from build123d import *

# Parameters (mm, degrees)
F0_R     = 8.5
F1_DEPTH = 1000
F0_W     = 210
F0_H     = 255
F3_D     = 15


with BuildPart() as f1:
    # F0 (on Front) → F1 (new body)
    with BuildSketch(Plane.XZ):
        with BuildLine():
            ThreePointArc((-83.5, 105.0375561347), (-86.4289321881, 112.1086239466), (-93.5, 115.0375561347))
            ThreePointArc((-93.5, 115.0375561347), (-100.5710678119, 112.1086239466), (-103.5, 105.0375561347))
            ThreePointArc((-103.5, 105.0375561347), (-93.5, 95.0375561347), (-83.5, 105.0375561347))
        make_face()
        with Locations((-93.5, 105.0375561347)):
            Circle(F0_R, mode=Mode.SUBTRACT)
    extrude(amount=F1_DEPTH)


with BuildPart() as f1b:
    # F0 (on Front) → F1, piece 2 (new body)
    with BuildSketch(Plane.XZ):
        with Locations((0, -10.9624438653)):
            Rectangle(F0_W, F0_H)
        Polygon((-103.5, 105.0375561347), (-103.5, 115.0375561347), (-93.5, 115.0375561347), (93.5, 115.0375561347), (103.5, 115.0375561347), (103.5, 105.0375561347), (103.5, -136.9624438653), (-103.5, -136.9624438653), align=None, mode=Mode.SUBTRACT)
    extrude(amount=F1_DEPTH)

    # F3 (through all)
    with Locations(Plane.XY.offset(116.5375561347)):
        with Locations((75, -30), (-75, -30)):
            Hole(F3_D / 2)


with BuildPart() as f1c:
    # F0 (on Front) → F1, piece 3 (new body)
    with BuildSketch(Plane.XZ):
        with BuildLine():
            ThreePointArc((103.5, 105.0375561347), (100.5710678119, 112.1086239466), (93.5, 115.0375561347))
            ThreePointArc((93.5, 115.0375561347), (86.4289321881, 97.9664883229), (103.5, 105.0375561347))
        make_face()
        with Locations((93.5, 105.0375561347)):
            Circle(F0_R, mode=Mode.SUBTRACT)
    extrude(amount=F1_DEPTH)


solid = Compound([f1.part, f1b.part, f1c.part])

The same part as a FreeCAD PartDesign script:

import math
import FreeCAD as App
import Part
import Sketcher

V = App.Vector
Q = App.Units.Quantity


def add_polygon(sketch, points):
    """Adds a closed chain of lines whose ends are joined by coincident constraints."""
    first, n = sketch.GeometryCount, len(points)
    for a, b in zip(points, points[1:] + points[:1]):
        sketch.addGeometry(Part.LineSegment(App.Vector(*a, 0), App.Vector(*b, 0)), False)
    for i in range(n):
        sketch.addConstraint(Sketcher.Constraint("Coincident", first + i, 2, first + (i + 1) % n, 1))

doc = App.newDocument("Part")
params = doc.addObject("Spreadsheet::Sheet", "Params")
for row, (alias, value) in enumerate([
    ("sketch1_diameter", "17 mm"),
    ("sketch1_radius", "10 mm"),
    ("pad1_length", "1000 mm"),
    ("sketch2_width", "210 mm"),
    ("sketch2_width2", "207 mm"),
    ("sketch2_height", "255 mm"),
    ("sketch2_height2", "252 mm"),
    ("pad2_length", "1000 mm"),
    ("sketch3_diameter", "15 mm"),
    ("hole_diameter", "15 mm"),
    ("sketch4_diameter", "17 mm"),
    ("sketch4_radius", "10 mm"),
    ("pad3_length", "1000 mm"),
], start=1):
    params.set(f"A{row}", alias)
    params.set(f"B{row}", "=" + value)
    params.setAlias(f"B{row}", alias)

body = doc.addObject("PartDesign::Body", "Body")

sketch1 = body.newObject("Sketcher::SketchObject", "Sketch")
sketch1.AttachmentSupport = (doc.getObject("XZ_Plane"), [""])
sketch1.MapMode = "FlatFace"
sketch1.addGeometry([
    Part.ArcOfCircle(Part.Circle(V(-93.5, 105.037556, 0), V(0, 0, 1), 10), math.radians(0), math.radians(90)),
    Part.ArcOfCircle(Part.Circle(V(-93.5, 105.037556, 0), V(0, 0, 1), 10), math.radians(90), math.radians(180)),
    Part.ArcOfCircle(Part.Circle(V(-93.5, 105.037556, 0), V(0, 0, 1), 10), math.radians(180), math.radians(360)),
    Part.Circle(V(-93.5, 105.037556, 0), V(0, 0, 1), 8.5),
], False)
sketch1.addConstraint([
    Sketcher.Constraint("Tangent", 0, 2, 1, 1),
    Sketcher.Constraint("Tangent", 1, 2, 2, 1),
    Sketcher.Constraint("Tangent", 2, 2, 0, 1),
    Sketcher.Constraint("Coincident", 3, 3, 0, 3),
    Sketcher.Constraint("Horizontal", 3, 3, 1, 2),
    Sketcher.Constraint("Horizontal", 1, 2, 2, 2),
    Sketcher.Constraint("Vertical", 3, 3, 0, 2),
    Sketcher.Constraint("Diameter", 3, Q("17 mm")),
    Sketcher.Constraint("Radius", 0, Q("10 mm")),
    Sketcher.Constraint("DistanceX", 0, 3, -1, 1, Q("93.5 mm")),
    Sketcher.Constraint("DistanceY", -1, 1, 0, 3, Q("105.037556 mm")),
])
sketch1.setExpression("Constraints[7]", "Params.sketch1_diameter")
sketch1.setExpression("Constraints[8]", "Params.sketch1_radius")
pad1 = body.newObject("PartDesign::Pad", "Pad")
pad1.Profile = sketch1
pad1.setExpression("Length", "Params.pad1_length")
body2 = doc.addObject("PartDesign::Body", "Body001")

sketch2 = body2.newObject("Sketcher::SketchObject", "Sketch001")
sketch2.AttachmentSupport = (doc.getObject("XZ_Plane001"), [""])
sketch2.MapMode = "FlatFace"
add_polygon(sketch2, [(-105, 116.537556), (-105, -138.462444), (105, -138.462444), (105, 116.537556)])
add_polygon(sketch2, [(-103.5, -136.962444), (-103.5, 115.037556), (103.5, 115.037556), (103.5, -136.962444)])
sketch2.addConstraint([
    Sketcher.Constraint("Vertical", 0),
    Sketcher.Constraint("Horizontal", 1),
    Sketcher.Constraint("Vertical", 2),
    Sketcher.Constraint("Horizontal", 3),
    Sketcher.Constraint("Vertical", 4),
    Sketcher.Constraint("Horizontal", 5),
    Sketcher.Constraint("Vertical", 6),
    Sketcher.Constraint("Horizontal", 7),
    Sketcher.Constraint("DistanceX", 1, 1, 1, 2, Q("210 mm")),
    Sketcher.Constraint("DistanceX", 5, 1, 5, 2, Q("207 mm")),
    Sketcher.Constraint("DistanceY", 0, 2, 0, 1, Q("255 mm")),
    Sketcher.Constraint("DistanceY", 4, 1, 4, 2, Q("252 mm")),
    Sketcher.Constraint("DistanceX", 0, 2, -1, 1, Q("105 mm")),
    Sketcher.Constraint("DistanceX", 4, 2, -1, 1, Q("103.5 mm")),
    Sketcher.Constraint("DistanceY", 4, 2, 3, 2, Q("1.5 mm")),
    Sketcher.Constraint("DistanceY", 0, 2, -1, 1, Q("138.462444 mm")),
])
sketch2.setExpression("Constraints[16]", "Params.sketch2_width")
sketch2.setExpression("Constraints[17]", "Params.sketch2_width2")
sketch2.setExpression("Constraints[18]", "Params.sketch2_height")
sketch2.setExpression("Constraints[19]", "Params.sketch2_height2")
pad2 = body2.newObject("PartDesign::Pad", "Pad001")
pad2.Profile = sketch2
pad2.setExpression("Length", "Params.pad2_length")

sketch3 = body2.newObject("Sketcher::SketchObject", "Sketch002")
sketch3.AttachmentSupport = (doc.getObject("XY_Plane001"), [""])
sketch3.MapMode = "FlatFace"
sketch3.AttachmentOffset = App.Placement(V(0, 0, 116.537556), App.Rotation())
sketch3.addGeometry([
    Part.Circle(V(75, -30, 0), V(0, 0, 1), 7.5),
    Part.Circle(V(-75, -30, 0), V(0, 0, 1), 7.5),
], False)
sketch3.addConstraint([
    Sketcher.Constraint("Equal", 0, 1),
    Sketcher.Constraint("Symmetric", 0, 3, 1, 3, -2),
    Sketcher.Constraint("Diameter", 0, Q("15 mm")),
    Sketcher.Constraint("DistanceX", -1, 1, 0, 3, Q("75 mm")),
    Sketcher.Constraint("DistanceY", 0, 3, -1, 1, Q("30 mm")),
])
sketch3.setExpression("Constraints[2]", "Params.sketch3_diameter")
doc.recompute()
hole = body2.newObject("PartDesign::Hole", "Hole")
hole.Profile = sketch3
hole.ThreadType = "None"
hole.setExpression("Diameter", "Params.hole_diameter")
hole.DepthType = "ThroughAll"
body3 = doc.addObject("PartDesign::Body", "Body002")

sketch4 = body3.newObject("Sketcher::SketchObject", "Sketch003")
sketch4.AttachmentSupport = (doc.getObject("XZ_Plane002"), [""])
sketch4.MapMode = "FlatFace"
sketch4.addGeometry([
    Part.ArcOfCircle(Part.Circle(V(93.5, 105.037556, 0), V(0, 0, 1), 10), math.radians(0), math.radians(90)),
    Part.ArcOfCircle(Part.Circle(V(93.5, 105.037556, 0), V(0, 0, 1), 10), math.radians(90), math.radians(360)),
    Part.Circle(V(93.5, 105.037556, 0), V(0, 0, 1), 8.5),
], False)
sketch4.addConstraint([
    Sketcher.Constraint("Tangent", 0, 1, 1, 2),
    Sketcher.Constraint("Coincident", 1, 1, 0, 2),
    Sketcher.Constraint("Coincident", 2, 3, 0, 3),
    Sketcher.Constraint("Horizontal", 2, 3, 0, 1),
    Sketcher.Constraint("Vertical", 2, 3, 1, 1),
    Sketcher.Constraint("Diameter", 2, Q("17 mm")),
    Sketcher.Constraint("Radius", 0, Q("10 mm")),
    Sketcher.Constraint("DistanceX", -1, 1, 0, 3, Q("93.5 mm")),
    Sketcher.Constraint("DistanceY", -1, 1, 0, 3, Q("105.037556 mm")),
])
sketch4.setExpression("Constraints[5]", "Params.sketch4_diameter")
sketch4.setExpression("Constraints[6]", "Params.sketch4_radius")
pad3 = body3.newObject("PartDesign::Pad", "Pad002")
pad3.Profile = sketch4
pad3.setExpression("Length", "Params.pad3_length")

doc.recompute()
